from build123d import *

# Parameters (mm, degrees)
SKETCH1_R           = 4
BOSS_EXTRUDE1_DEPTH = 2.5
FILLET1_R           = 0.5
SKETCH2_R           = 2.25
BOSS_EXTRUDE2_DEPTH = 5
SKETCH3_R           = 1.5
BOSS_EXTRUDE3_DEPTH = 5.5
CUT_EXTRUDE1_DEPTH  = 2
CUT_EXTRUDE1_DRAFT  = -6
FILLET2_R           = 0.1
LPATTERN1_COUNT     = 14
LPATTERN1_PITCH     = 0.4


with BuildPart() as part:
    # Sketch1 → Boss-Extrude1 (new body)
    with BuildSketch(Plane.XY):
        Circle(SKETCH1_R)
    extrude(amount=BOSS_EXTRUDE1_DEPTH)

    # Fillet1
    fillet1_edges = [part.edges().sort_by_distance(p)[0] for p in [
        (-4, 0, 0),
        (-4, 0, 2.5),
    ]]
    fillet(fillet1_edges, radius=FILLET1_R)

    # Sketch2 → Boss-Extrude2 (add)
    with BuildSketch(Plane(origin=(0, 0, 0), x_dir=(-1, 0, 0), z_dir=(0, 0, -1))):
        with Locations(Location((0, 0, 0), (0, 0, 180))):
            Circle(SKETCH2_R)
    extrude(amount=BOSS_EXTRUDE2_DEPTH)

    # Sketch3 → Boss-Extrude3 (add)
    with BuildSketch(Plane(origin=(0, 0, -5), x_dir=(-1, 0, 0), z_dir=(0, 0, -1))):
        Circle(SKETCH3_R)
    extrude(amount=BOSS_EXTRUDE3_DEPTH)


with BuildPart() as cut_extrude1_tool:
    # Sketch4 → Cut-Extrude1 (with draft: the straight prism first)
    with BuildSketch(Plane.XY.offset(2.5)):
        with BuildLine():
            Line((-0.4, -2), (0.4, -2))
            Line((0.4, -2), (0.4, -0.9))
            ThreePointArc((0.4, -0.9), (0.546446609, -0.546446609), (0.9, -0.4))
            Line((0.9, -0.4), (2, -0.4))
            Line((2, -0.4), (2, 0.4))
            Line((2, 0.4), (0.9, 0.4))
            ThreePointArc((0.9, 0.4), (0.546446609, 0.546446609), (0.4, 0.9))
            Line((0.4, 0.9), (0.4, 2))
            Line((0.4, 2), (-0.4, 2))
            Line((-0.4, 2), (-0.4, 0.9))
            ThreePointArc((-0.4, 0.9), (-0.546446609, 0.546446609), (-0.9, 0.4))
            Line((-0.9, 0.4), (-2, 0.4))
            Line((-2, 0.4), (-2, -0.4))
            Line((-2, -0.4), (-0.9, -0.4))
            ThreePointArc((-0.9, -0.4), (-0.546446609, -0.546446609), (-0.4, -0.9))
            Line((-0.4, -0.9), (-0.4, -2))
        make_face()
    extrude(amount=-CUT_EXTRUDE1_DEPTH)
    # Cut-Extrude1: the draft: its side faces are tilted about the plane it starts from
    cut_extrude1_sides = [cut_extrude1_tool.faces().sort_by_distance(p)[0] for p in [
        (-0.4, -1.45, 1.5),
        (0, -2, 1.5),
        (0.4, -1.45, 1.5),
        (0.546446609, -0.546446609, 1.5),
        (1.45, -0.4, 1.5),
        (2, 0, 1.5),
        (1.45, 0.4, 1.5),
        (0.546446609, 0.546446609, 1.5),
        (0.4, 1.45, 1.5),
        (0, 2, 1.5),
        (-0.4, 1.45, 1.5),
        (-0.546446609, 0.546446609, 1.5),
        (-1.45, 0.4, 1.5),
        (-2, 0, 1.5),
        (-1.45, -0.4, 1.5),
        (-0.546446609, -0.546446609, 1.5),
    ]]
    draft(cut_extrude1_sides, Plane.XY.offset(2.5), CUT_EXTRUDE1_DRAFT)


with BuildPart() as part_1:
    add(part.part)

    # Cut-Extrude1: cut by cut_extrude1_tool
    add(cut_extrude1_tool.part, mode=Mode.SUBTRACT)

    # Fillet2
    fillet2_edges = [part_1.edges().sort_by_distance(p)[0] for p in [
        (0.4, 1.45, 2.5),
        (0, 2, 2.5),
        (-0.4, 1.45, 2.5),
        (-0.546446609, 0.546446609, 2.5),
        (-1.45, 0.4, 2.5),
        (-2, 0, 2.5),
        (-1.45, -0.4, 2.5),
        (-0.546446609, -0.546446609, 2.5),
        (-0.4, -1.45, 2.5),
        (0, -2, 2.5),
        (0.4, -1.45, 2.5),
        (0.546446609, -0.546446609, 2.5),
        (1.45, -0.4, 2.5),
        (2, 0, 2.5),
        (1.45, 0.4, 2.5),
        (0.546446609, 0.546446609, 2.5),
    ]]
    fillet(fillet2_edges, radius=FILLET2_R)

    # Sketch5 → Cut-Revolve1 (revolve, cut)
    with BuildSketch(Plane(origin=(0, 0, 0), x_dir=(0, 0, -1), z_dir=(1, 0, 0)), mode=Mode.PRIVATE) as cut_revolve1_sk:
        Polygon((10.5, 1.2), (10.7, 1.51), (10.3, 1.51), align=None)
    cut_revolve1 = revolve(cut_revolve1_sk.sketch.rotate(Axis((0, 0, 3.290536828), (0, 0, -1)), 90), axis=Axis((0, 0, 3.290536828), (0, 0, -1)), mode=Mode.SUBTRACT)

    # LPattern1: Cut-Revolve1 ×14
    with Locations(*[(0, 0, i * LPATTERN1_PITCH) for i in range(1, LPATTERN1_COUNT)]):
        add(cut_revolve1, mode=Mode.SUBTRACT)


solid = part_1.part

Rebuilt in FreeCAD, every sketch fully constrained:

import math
import FreeCAD as App
import Part
import Sketcher


def edges_at(feature, points):
    """Names of the edges that pass closest to the given points."""
    edges = feature.Shape.Edges
    near = lambda p: min(range(len(edges)), key=lambda i: edges[i].distToShape(Part.Vertex(*p))[0])
    return sorted({f"Edge{near(p) + 1}" for p in points})


def faces_at(feature, points):
    """Names of the faces that lie closest to the given points."""
    faces = feature.Shape.Faces
    near = lambda p: min(range(len(faces)), key=lambda i: faces[i].distToShape(Part.Vertex(*p))[0])
    return sorted({f"Face{near(p) + 1}" for p in points})

doc = App.newDocument("Part")
body = doc.addObject("PartDesign::Body", "Body")

# Sketch on XY plane
sketch1 = body.newObject("Sketcher::SketchObject", "Sketch")
sketch1.AttachmentSupport = (doc.getObject("XY_Plane"), [""])
sketch1.MapMode = "FlatFace"
sketch1.addGeometry(Part.Circle(App.Vector(0, 0, 0), App.Vector(0, 0, 1), 4), False)
sketch1.addConstraint([
    Sketcher.Constraint("Coincident", 0, 3, -1, 1),
    Sketcher.Constraint("Diameter", 0, 8.0),
])
pad1 = body.newObject("PartDesign::Pad", "Pad")
pad1.Profile = sketch1
pad1.Length = 2.5
doc.recompute()

fillet = body.newObject("PartDesign::Fillet", "Fillet")
fillet.Base = (pad1, edges_at(pad1, [(-4, 0, 0), (-4, 0, 2.5)]))
fillet.Radius = 0.5

# Sketch on XY plane
sketch2 = body.newObject("Sketcher::SketchObject", "Sketch001")
sketch2.AttachmentSupport = (doc.getObject("XY_Plane"), [""])
sketch2.MapMode = "FlatFace"
sketch2.addGeometry(Part.Circle(App.Vector(0, 0, 0), App.Vector(0, 0, 1), 2.25), False)
sketch2.addConstraint([
    Sketcher.Constraint("Coincident", 0, 3, -1, 1),
    Sketcher.Constraint("Diameter", 0, 4.5),
])
pad2 = body.newObject("PartDesign::Pad", "Pad001")
pad2.Profile = sketch2
pad2.Length = 5
pad2.Reversed = True

# Sketch on XY plane
sketch3 = body.newObject("Sketcher::SketchObject", "Sketch002")
sketch3.AttachmentSupport = (doc.getObject("XY_Plane"), [""])
sketch3.MapMode = "FlatFace"
sketch3.AttachmentOffset = App.Placement(App.Vector(0, 0, -5), App.Rotation())
sketch3.addGeometry(Part.Circle(App.Vector(0, 0, 0), App.Vector(0, 0, 1), 1.5), False)
sketch3.addConstraint([
    Sketcher.Constraint("Coincident", 0, 3, -1, 1),
    Sketcher.Constraint("Diameter", 0, 3.0),
])
pad3 = body.newObject("PartDesign::Pad", "Pad002")
pad3.Profile = sketch3
pad3.Length = 5.5
pad3.Reversed = True
body2 = doc.addObject("PartDesign::Body", "Body001")

# Sketch on XY plane
sketch4 = body2.newObject("Sketcher::SketchObject", "Sketch003")
sketch4.AttachmentSupport = (doc.getObject("XY_Plane001"), [""])
sketch4.MapMode = "FlatFace"
sketch4.AttachmentOffset = App.Placement(App.Vector(0, 0, 2.5), App.Rotation())
sketch4.addGeometry([
    Part.LineSegment(App.Vector(-0.4, -2, 0), App.Vector(0.4, -2, 0)),  # 0
    Part.LineSegment(App.Vector(0.4, -2, 0), App.Vector(0.4, -0.9, 0)),  # 1
    Part.ArcOfCircle(Part.Circle(App.Vector(0.9, -0.9, 0), App.Vector(0, 0, 1), 0.5), math.radians(90), math.radians(180)),  # 2
    Part.LineSegment(App.Vector(0.9, -0.4, 0), App.Vector(2, -0.4, 0)),  # 3
    Part.LineSegment(App.Vector(2, -0.4, 0), App.Vector(2, 0.4, 0)),  # 4
    Part.LineSegment(App.Vector(2, 0.4, 0), App.Vector(0.9, 0.4, 0)),  # 5
    Part.ArcOfCircle(Part.Circle(App.Vector(0.9, 0.9, 0), App.Vector(0, 0, 1), 0.5), math.radians(180), math.radians(270)),  # 6
    Part.LineSegment(App.Vector(0.4, 0.9, 0), App.Vector(0.4, 2, 0)),  # 7
    Part.LineSegment(App.Vector(0.4, 2, 0), App.Vector(-0.4, 2, 0)),  # 8
    Part.LineSegment(App.Vector(-0.4, 2, 0), App.Vector(-0.4, 0.9, 0)),  # 9
    Part.ArcOfCircle(Part.Circle(App.Vector(-0.9, 0.9, 0), App.Vector(0, 0, 1), 0.5), math.radians(-90), math.radians(0)),  # 10
    Part.LineSegment(App.Vector(-0.9, 0.4, 0), App.Vector(-2, 0.4, 0)),  # 11
    Part.LineSegment(App.Vector(-2, 0.4, 0), App.Vector(-2, -0.4, 0)),  # 12
    Part.LineSegment(App.Vector(-2, -0.4, 0), App.Vector(-0.9, -0.4, 0)),  # 13
    Part.ArcOfCircle(Part.Circle(App.Vector(-0.9, -0.9, 0), App.Vector(0, 0, 1), 0.5), math.radians(0), math.radians(90)),  # 14
    Part.LineSegment(App.Vector(-0.4, -0.9, 0), App.Vector(-0.4, -2, 0)),  # 15
], False)
sketch4.addConstraint([
    Sketcher.Constraint("Coincident", 0, 2, 1, 1),
    Sketcher.Constraint("Tangent", 1, 2, 2, 2),
    Sketcher.Constraint("Tangent", 2, 1, 3, 1),
    Sketcher.Constraint("Coincident", 3, 2, 4, 1),
    Sketcher.Constraint("Coincident", 4, 2, 5, 1),
    Sketcher.Constraint("Tangent", 5, 2, 6, 2),
    Sketcher.Constraint("Tangent", 6, 1, 7, 1),
    Sketcher.Constraint("Coincident", 7, 2, 8, 1),
    Sketcher.Constraint("Coincident", 8, 2, 9, 1),
    Sketcher.Constraint("Tangent", 9, 2, 10, 2),
    Sketcher.Constraint("Tangent", 10, 1, 11, 1),
    Sketcher.Constraint("Coincident", 11, 2, 12, 1),
    Sketcher.Constraint("Coincident", 12, 2, 13, 1),
    Sketcher.Constraint("Tangent", 13, 2, 14, 2),
    Sketcher.Constraint("Tangent", 14, 1, 15, 1),
    Sketcher.Constraint("Coincident", 15, 2, 0, 1),
    Sketcher.Constraint("Horizontal", 0),
    Sketcher.Constraint("Vertical", 1),
    Sketcher.Constraint("Horizontal", 3),
    Sketcher.Constraint("Vertical", 4),
    Sketcher.Constraint("Horizontal", 5),
    Sketcher.Constraint("Vertical", 7),
    Sketcher.Constraint("Horizontal", 8),
    Sketcher.Constraint("Vertical", 9),
    Sketcher.Constraint("Horizontal", 11),
    Sketcher.Constraint("Vertical", 12),
    Sketcher.Constraint("Horizontal", 13),
    Sketcher.Constraint("Vertical", 15),
    Sketcher.Constraint("Equal", 2, 6),
    Sketcher.Constraint("Equal", 6, 10),
    Sketcher.Constraint("Equal", 10, 14),
    Sketcher.Constraint("Symmetric", 2, 3, 10, 3, -1, 1),
    Sketcher.Constraint("Symmetric", 6, 3, 14, 3, -1, 1),
    Sketcher.Constraint("Symmetric", 6, 3, 10, 3, -2),
    Sketcher.Constraint("Equal", 5, 11),
    Sketcher.Constraint("Equal", 13, 1),
    Sketcher.Constraint("Equal", 8, 4),
    Sketcher.Constraint("Equal", 1, 7),
    Sketcher.Constraint("Radius", 2, 0.5),
    Sketcher.Constraint("DistanceX", 0, 1, 0, 2, 0.8),
    Sketcher.Constraint("DistanceX", 3, 1, 3, 2, 1.1),
])
pad4 = body2.newObject("PartDesign::Pad", "Pad003")
pad4.Profile = sketch4
pad4.Length = 2
pad4.Reversed = True
doc.recompute()

datumplane = body2.newObject("PartDesign::Plane", "DatumPlane")
datumplane.AttachmentSupport = (doc.getObject("XY_Plane001"), [""])
datumplane.MapMode = "FlatFace"
datumplane.AttachmentOffset = App.Placement(App.Vector(0, 0, 2.5), App.Rotation())
draft = body2.newObject("PartDesign::Draft", "Draft")
draft.Base = (pad4, faces_at(pad4, [
    (-0.4, -1.45, 1.5),
    (0, -2, 1.5),
    (0.4, -1.45, 1.5),
    (0.546, -0.546, 1.5),
    (1.45, -0.4, 1.5),
    (2, 0, 1.5),
    (1.45, 0.4, 1.5),
    (0.546, 0.546, 1.5),
    (0.4, 1.45, 1.5),
    (0, 2, 1.5),
    (-0.4, 1.45, 1.5),
    (-0.546, 0.546, 1.5),
    (-1.45, 0.4, 1.5),
    (-2, 0, 1.5),
    (-1.45, -0.4, 1.5),
    (-0.546, -0.546, 1.5),
]))
draft.NeutralPlane = (datumplane, [""])
draft.Angle = 6
draft.Reversed = True
doc.recompute()

boolean = body.newObject("PartDesign::Boolean", "Boolean")
boolean.Type = "Cut"
boolean.addObjects([body2])
doc.recompute()

fillet2 = body.newObject("PartDesign::Fillet", "Fillet001")
fillet2.Base = (boolean, edges_at(boolean, [
    (0.4, 1.45, 2.5),
    (0, 2, 2.5),
    (-0.4, 1.45, 2.5),
    (-0.546, 0.546, 2.5),
    (-1.45, 0.4, 2.5),
    (-2, 0, 2.5),
    (-1.45, -0.4, 2.5),
    (-0.546, -0.546, 2.5),
    (-0.4, -1.45, 2.5),
    (0, -2, 2.5),
    (0.4, -1.45, 2.5),
    (0.546, -0.546, 2.5),
    (1.45, -0.4, 2.5),
    (2, 0, 2.5),
    (1.45, 0.4, 2.5),
    (0.546, 0.546, 2.5),
]))
fillet2.Radius = 0.1

# Sketch on YZ plane
sketch5 = body.newObject("Sketcher::SketchObject", "Sketch004")
sketch5.AttachmentSupport = (doc.getObject("YZ_Plane"), [""])
sketch5.MapMode = "FlatFace"
sketch5.addGeometry([
    Part.LineSegment(App.Vector(1.2, -10.5, 0), App.Vector(1.51, -10.7, 0)),
    Part.LineSegment(App.Vector(1.51, -10.7, 0), App.Vector(1.51, -10.3, 0)),
    Part.LineSegment(App.Vector(1.51, -10.3, 0), App.Vector(1.2, -10.5, 0)),
], False)
sketch5.addConstraint([
    Sketcher.Constraint("Coincident", 0, 2, 1, 1),
    Sketcher.Constraint("Coincident", 1, 2, 2, 1),
    Sketcher.Constraint("Coincident", 2, 2, 0, 1),
    Sketcher.Constraint("Vertical", 1),
    Sketcher.Constraint("Equal", 0, 2),
    Sketcher.Constraint("DistanceY", 1, 1, 1, 2, 0.4),
    Sketcher.Constraint("DistanceY", 0, 2, -1, 1, 10.7),
    Sketcher.Constraint("DistanceX", -1, 1, 2, 2, 1.2),
    Sketcher.Constraint("DistanceX", -1, 1, 0, 2, 1.51),
])
groove = body.newObject("PartDesign::Groove", "Groove")
groove.Profile = sketch5
groove.ReferenceAxis = (sketch5, ["V_Axis"])
groove.Angle = 360
doc.recompute()

linearpattern = body.newObject("PartDesign::LinearPattern", "LinearPattern")
linearpattern.Originals = [groove]
linearpattern.Direction = (doc.getObject("Z_Axis"), [""])
linearpattern.Mode = "offset"
linearpattern.Offset = 0.4
linearpattern.Occurrences = 14
body.Tip = linearpattern

doc.recompute()
